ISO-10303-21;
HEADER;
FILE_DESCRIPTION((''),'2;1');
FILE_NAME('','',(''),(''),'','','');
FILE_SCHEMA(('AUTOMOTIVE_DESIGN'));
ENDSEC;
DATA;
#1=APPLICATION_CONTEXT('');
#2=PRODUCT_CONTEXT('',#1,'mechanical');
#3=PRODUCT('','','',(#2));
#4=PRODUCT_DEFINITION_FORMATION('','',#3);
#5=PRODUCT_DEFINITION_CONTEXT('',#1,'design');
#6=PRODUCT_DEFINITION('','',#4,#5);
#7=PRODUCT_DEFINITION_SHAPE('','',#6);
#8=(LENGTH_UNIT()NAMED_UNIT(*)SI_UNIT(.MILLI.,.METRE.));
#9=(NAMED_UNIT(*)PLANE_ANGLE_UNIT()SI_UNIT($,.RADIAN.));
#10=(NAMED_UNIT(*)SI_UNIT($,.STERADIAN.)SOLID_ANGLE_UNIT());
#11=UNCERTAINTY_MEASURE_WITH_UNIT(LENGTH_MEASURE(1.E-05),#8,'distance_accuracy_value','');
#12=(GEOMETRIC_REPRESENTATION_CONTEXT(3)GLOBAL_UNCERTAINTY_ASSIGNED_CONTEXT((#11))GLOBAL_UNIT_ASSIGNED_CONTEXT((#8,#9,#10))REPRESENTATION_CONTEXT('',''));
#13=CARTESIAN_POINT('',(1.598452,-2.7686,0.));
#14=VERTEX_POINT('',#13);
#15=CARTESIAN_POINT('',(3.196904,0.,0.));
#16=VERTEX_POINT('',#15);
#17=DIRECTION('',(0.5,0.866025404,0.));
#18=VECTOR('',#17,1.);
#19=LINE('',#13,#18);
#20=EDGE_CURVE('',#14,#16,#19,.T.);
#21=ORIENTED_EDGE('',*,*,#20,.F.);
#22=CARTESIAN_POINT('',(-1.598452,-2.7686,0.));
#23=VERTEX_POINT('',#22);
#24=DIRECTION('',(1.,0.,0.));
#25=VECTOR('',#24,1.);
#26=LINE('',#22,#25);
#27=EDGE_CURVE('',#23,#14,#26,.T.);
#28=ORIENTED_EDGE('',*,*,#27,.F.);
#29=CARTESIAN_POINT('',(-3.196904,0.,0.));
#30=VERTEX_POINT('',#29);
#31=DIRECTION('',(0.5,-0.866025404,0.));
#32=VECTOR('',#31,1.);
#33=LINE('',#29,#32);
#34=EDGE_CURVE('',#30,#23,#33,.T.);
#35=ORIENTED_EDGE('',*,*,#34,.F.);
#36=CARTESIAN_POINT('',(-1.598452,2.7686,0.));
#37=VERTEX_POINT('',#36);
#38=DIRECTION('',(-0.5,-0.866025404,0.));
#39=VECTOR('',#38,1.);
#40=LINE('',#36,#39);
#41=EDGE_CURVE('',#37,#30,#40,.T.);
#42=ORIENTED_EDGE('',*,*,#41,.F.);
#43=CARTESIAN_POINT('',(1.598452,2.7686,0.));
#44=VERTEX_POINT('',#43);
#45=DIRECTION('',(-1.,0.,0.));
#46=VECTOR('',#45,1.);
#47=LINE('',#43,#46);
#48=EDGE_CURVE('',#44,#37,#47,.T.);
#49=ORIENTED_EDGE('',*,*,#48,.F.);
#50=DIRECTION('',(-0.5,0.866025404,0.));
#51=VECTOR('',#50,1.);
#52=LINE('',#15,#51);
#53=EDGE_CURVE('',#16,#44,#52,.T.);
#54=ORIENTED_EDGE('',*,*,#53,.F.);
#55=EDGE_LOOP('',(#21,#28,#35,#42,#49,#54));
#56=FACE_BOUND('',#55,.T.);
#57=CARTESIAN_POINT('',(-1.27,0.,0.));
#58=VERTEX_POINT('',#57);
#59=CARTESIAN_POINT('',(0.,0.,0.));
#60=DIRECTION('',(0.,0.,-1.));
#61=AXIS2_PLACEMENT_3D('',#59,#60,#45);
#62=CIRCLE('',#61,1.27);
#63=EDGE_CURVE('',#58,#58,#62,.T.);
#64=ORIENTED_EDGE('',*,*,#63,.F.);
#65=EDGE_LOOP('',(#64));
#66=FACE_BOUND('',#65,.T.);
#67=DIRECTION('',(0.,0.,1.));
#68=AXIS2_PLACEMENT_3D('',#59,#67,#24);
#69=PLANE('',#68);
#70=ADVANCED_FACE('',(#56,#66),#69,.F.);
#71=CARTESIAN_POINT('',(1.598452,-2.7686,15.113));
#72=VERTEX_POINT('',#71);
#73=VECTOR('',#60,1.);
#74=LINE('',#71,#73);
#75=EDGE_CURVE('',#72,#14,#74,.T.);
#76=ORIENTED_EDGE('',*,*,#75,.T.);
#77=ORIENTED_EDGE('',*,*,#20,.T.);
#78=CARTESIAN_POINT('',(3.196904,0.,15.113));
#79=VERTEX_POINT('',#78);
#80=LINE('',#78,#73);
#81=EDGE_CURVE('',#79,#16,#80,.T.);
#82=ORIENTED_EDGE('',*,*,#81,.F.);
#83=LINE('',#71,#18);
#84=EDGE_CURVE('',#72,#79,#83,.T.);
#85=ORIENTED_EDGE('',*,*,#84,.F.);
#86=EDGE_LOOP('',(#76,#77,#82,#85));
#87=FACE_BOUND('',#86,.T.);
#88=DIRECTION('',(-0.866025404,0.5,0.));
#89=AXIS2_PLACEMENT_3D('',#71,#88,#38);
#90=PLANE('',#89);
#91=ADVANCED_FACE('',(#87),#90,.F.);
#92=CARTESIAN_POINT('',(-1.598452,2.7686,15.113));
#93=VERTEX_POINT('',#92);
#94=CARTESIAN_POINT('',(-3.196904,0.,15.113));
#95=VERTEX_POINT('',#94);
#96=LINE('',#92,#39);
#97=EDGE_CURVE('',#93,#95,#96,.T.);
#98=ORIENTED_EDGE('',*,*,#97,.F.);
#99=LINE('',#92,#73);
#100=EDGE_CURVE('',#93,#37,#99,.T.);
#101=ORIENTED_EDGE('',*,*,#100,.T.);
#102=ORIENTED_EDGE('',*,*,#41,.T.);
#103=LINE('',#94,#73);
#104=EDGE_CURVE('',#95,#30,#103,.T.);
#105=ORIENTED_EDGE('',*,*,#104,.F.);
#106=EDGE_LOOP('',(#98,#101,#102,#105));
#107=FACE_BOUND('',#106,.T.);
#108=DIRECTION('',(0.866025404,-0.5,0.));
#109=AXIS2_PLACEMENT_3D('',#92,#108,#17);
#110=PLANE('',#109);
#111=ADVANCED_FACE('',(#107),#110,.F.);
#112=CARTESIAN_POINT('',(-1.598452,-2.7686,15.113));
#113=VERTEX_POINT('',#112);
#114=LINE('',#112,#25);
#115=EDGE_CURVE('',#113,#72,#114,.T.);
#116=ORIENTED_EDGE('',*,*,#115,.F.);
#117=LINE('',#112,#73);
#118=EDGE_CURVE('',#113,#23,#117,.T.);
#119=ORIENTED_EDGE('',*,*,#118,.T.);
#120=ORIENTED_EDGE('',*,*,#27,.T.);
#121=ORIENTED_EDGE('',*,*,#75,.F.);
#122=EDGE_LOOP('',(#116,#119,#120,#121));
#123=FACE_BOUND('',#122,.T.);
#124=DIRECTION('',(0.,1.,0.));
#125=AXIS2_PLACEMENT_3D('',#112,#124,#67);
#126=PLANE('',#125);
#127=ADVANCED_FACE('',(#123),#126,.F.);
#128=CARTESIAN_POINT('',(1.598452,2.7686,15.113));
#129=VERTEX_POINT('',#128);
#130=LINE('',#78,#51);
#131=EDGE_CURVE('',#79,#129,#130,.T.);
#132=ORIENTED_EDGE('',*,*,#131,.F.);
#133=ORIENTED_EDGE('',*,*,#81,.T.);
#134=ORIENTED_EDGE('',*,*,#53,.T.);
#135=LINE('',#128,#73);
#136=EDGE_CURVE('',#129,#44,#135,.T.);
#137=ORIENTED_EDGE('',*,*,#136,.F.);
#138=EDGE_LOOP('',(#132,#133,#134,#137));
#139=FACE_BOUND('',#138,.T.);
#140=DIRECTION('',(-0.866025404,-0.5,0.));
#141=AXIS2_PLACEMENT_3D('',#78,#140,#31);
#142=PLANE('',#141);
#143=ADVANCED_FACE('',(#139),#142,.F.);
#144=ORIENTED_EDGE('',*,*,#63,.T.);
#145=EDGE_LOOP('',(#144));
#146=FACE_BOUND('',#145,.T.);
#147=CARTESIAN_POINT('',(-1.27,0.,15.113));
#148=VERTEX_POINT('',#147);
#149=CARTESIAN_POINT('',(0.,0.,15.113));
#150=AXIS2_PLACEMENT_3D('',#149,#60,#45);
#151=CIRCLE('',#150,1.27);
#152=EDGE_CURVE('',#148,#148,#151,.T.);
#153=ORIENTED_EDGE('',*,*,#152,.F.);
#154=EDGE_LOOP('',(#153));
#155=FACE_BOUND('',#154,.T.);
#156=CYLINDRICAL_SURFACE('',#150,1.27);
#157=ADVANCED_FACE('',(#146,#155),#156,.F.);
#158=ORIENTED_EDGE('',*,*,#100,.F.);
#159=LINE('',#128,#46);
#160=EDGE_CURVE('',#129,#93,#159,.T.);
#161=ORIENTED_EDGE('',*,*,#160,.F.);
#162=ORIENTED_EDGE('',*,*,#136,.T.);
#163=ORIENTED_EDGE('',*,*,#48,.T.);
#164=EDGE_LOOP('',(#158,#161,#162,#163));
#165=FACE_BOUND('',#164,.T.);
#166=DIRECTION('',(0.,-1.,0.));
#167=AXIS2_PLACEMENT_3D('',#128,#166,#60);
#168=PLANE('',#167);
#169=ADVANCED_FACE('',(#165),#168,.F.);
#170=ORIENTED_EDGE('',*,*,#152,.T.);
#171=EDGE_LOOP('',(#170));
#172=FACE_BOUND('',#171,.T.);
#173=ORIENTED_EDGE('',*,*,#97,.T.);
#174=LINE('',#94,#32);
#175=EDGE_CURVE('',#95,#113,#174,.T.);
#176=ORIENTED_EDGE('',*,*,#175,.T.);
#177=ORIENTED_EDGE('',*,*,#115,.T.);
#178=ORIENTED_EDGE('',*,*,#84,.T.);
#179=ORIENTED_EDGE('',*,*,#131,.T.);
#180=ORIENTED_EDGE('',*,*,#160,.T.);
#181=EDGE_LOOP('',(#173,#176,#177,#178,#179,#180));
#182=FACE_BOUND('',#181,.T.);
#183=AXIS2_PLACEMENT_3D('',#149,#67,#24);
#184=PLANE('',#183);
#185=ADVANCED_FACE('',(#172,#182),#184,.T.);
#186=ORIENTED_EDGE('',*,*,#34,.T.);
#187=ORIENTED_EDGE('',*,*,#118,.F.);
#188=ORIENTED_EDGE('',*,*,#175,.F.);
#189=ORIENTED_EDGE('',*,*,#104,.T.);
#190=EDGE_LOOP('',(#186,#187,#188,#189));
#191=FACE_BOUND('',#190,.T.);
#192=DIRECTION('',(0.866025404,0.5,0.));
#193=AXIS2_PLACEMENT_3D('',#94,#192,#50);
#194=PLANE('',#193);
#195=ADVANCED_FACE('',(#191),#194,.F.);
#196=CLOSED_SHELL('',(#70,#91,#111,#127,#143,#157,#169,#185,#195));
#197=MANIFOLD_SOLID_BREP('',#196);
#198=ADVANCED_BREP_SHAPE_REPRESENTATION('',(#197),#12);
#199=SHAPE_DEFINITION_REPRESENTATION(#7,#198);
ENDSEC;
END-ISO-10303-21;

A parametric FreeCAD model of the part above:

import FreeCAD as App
import Part
import Sketcher
from FreeCAD import Vector
Q = App.Units.Quantity

doc = App.newDocument("Part")
body = doc.addObject("PartDesign::Body", "Body")

# Sketch on XY plane
sketch1 = body.newObject("Sketcher::SketchObject", "Sketch")
sketch1.AttachmentSupport = (doc.getObject("XY_Plane"), [""])
sketch1.MapMode = "FlatFace"
sketch1.addGeometry(Part.LineSegment(Vector(-3.2, 0, 0), Vector(-1.6, -2.8, 0)), False)
sketch1.addGeometry(Part.LineSegment(Vector(-1.6, -2.8, 0), Vector(1.6, -2.8, 0)), False)
sketch1.addGeometry(Part.LineSegment(Vector(1.6, -2.8, 0), Vector(3.2, 0, 0)), False)
sketch1.addGeometry(Part.LineSegment(Vector(3.2, 0, 0), Vector(1.6, 2.8, 0)), False)
sketch1.addGeometry(Part.LineSegment(Vector(1.6, 2.8, 0), Vector(-1.6, 2.8, 0)), False)
sketch1.addGeometry(Part.LineSegment(Vector(-1.6, 2.8, 0), Vector(-3.2, 0, 0)), False)
sketch1.addConstraint(Sketcher.Constraint("Coincident", 0, 2, 1, 1))
sketch1.addConstraint(Sketcher.Constraint("Coincident", 1, 2, 2, 1))
sketch1.addConstraint(Sketcher.Constraint("Coincident", 2, 2, 3, 1))
sketch1.addConstraint(Sketcher.Constraint("Coincident", 3, 2, 4, 1))
sketch1.addConstraint(Sketcher.Constraint("Coincident", 4, 2, 5, 1))
sketch1.addConstraint(Sketcher.Constraint("Coincident", 5, 2, 0, 1))
sketch1.addConstraint(Sketcher.Constraint("Horizontal", 1))
sketch1.addConstraint(Sketcher.Constraint("Horizontal", 4))
sketch1.addConstraint(Sketcher.Constraint("Symmetric", 0, 2, 3, 2, -1, 1))
sketch1.addConstraint(Sketcher.Constraint("Symmetric", 2, 2, 5, 2, -1, 1))
sketch1.addConstraint(Sketcher.Constraint("PointOnObject", 2, 2, -1))
sketch1.addConstraint(Sketcher.Constraint("Parallel", 2, 5))
sketch1.addConstraint(Sketcher.Constraint("Vertical", 1, 2, 3, 2))
sketch1.addConstraint(Sketcher.Constraint("Angle", 0, Q("-60 deg")))
sketch1.addConstraint(Sketcher.Constraint("DistanceY", 0, 2, -1, 1, Q("0.109 in")))
sketch1.addConstraint(Sketcher.Constraint("DistanceX", 1, 1, 1, 2, Q("3.196904 mm")))
pad1 = body.newObject("PartDesign::Pad", "Pad")
pad1.Profile = sketch1
pad1.Length = Q("0.595 in")

# Sketch on XY plane
sketch2 = body.newObject("Sketcher::SketchObject", "Sketch001")
sketch2.AttachmentSupport = (doc.getObject("XY_Plane"), [""])
sketch2.MapMode = "FlatFace"
sketch2.addGeometry(Part.Circle(Vector(0, 0, 0), Vector(0, 0, 1), 1.3), False)
sketch2.addConstraint(Sketcher.Constraint("Coincident", 0, 3, -1, 1))
sketch2.addConstraint(Sketcher.Constraint("Diameter", 0, Q("0.1 in")))
pocket1 = body.newObject("PartDesign::Pocket", "Pocket")
pocket1.Profile = sketch2
pocket1.Type = "ThroughAll"
pocket1.Reversed = True

doc.recompute()
